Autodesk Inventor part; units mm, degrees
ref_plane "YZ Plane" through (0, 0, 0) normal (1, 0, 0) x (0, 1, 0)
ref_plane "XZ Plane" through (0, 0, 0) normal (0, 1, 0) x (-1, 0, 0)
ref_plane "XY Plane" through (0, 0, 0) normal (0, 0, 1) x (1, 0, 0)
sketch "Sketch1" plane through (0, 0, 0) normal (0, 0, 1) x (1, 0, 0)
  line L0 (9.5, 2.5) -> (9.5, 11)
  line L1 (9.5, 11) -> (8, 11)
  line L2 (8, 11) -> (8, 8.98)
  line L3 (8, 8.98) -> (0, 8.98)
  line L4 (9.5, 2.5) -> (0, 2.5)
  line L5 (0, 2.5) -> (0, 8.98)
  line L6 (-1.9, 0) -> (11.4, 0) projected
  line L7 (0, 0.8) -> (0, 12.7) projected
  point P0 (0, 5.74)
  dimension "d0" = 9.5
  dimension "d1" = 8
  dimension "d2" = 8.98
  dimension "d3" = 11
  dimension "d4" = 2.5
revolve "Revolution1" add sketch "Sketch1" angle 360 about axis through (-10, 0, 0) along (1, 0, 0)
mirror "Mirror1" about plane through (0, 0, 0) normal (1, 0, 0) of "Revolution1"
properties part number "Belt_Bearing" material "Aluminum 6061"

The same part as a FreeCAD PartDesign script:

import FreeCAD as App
import Part
import Sketcher
Q = App.Units.Quantity


def add_polygon(sketch, points):
    """Adds a closed chain of lines whose ends are joined by coincident constraints."""
    first, n = sketch.GeometryCount, len(points)
    for a, b in zip(points, points[1:] + points[:1]):
        sketch.addGeometry(Part.LineSegment(App.Vector(*a, 0), App.Vector(*b, 0)), False)
    for i in range(n):
        sketch.addConstraint(Sketcher.Constraint("Coincident", first + i, 2, first + (i + 1) % n, 1))

doc = App.newDocument("Part")
body = doc.addObject("PartDesign::Body", "Body")

# Sketch on XY plane
sketch1 = body.newObject("Sketcher::SketchObject", "Sketch")
sketch1.AttachmentSupport = (doc.getObject("XY_Plane"), [""])
sketch1.MapMode = "FlatFace"
add_polygon(sketch1, [(0, 2.5), (9.5, 2.5), (9.5, 11), (8, 11), (8, 8.98), (0, 8.98)])  # lines 0-5
sketch1.addConstraint(Sketcher.Constraint("Horizontal", 0))
sketch1.addConstraint(Sketcher.Constraint("Vertical", 1))
sketch1.addConstraint(Sketcher.Constraint("Horizontal", 2))
sketch1.addConstraint(Sketcher.Constraint("Vertical", 3))
sketch1.addConstraint(Sketcher.Constraint("Horizontal", 4))
sketch1.addConstraint(Sketcher.Constraint("Vertical", 5))
sketch1.addConstraint(Sketcher.Constraint("PointOnObject", 4, 2, -2))
sketch1.addConstraint(Sketcher.Constraint("DistanceX", 4, 2, 4, 1, Q("8 mm")))
sketch1.addConstraint(Sketcher.Constraint("DistanceX", 0, 1, 0, 2, Q("9.5 mm")))
sketch1.addConstraint(Sketcher.Constraint("DistanceY", -1, 1, 1, 2, Q("11 mm")))
sketch1.addConstraint(Sketcher.Constraint("DistanceY", -1, 1, 0, 2, Q("2.5 mm")))
sketch1.addConstraint(Sketcher.Constraint("DistanceY", -1, 1, 3, 2, Q("8.98 mm")))
revolution = body.newObject("PartDesign::Revolution", "Revolution")
revolution.Profile = sketch1
revolution.ReferenceAxis = (sketch1, ["H_Axis"])
revolution.Angle = 360
doc.recompute()

mirrored = body.newObject("PartDesign::Mirrored", "Mirrored")
mirrored.Originals = [revolution]
mirrored.MirrorPlane = (doc.getObject("YZ_Plane"), [""])
body.Tip = mirrored

doc.recompute()
